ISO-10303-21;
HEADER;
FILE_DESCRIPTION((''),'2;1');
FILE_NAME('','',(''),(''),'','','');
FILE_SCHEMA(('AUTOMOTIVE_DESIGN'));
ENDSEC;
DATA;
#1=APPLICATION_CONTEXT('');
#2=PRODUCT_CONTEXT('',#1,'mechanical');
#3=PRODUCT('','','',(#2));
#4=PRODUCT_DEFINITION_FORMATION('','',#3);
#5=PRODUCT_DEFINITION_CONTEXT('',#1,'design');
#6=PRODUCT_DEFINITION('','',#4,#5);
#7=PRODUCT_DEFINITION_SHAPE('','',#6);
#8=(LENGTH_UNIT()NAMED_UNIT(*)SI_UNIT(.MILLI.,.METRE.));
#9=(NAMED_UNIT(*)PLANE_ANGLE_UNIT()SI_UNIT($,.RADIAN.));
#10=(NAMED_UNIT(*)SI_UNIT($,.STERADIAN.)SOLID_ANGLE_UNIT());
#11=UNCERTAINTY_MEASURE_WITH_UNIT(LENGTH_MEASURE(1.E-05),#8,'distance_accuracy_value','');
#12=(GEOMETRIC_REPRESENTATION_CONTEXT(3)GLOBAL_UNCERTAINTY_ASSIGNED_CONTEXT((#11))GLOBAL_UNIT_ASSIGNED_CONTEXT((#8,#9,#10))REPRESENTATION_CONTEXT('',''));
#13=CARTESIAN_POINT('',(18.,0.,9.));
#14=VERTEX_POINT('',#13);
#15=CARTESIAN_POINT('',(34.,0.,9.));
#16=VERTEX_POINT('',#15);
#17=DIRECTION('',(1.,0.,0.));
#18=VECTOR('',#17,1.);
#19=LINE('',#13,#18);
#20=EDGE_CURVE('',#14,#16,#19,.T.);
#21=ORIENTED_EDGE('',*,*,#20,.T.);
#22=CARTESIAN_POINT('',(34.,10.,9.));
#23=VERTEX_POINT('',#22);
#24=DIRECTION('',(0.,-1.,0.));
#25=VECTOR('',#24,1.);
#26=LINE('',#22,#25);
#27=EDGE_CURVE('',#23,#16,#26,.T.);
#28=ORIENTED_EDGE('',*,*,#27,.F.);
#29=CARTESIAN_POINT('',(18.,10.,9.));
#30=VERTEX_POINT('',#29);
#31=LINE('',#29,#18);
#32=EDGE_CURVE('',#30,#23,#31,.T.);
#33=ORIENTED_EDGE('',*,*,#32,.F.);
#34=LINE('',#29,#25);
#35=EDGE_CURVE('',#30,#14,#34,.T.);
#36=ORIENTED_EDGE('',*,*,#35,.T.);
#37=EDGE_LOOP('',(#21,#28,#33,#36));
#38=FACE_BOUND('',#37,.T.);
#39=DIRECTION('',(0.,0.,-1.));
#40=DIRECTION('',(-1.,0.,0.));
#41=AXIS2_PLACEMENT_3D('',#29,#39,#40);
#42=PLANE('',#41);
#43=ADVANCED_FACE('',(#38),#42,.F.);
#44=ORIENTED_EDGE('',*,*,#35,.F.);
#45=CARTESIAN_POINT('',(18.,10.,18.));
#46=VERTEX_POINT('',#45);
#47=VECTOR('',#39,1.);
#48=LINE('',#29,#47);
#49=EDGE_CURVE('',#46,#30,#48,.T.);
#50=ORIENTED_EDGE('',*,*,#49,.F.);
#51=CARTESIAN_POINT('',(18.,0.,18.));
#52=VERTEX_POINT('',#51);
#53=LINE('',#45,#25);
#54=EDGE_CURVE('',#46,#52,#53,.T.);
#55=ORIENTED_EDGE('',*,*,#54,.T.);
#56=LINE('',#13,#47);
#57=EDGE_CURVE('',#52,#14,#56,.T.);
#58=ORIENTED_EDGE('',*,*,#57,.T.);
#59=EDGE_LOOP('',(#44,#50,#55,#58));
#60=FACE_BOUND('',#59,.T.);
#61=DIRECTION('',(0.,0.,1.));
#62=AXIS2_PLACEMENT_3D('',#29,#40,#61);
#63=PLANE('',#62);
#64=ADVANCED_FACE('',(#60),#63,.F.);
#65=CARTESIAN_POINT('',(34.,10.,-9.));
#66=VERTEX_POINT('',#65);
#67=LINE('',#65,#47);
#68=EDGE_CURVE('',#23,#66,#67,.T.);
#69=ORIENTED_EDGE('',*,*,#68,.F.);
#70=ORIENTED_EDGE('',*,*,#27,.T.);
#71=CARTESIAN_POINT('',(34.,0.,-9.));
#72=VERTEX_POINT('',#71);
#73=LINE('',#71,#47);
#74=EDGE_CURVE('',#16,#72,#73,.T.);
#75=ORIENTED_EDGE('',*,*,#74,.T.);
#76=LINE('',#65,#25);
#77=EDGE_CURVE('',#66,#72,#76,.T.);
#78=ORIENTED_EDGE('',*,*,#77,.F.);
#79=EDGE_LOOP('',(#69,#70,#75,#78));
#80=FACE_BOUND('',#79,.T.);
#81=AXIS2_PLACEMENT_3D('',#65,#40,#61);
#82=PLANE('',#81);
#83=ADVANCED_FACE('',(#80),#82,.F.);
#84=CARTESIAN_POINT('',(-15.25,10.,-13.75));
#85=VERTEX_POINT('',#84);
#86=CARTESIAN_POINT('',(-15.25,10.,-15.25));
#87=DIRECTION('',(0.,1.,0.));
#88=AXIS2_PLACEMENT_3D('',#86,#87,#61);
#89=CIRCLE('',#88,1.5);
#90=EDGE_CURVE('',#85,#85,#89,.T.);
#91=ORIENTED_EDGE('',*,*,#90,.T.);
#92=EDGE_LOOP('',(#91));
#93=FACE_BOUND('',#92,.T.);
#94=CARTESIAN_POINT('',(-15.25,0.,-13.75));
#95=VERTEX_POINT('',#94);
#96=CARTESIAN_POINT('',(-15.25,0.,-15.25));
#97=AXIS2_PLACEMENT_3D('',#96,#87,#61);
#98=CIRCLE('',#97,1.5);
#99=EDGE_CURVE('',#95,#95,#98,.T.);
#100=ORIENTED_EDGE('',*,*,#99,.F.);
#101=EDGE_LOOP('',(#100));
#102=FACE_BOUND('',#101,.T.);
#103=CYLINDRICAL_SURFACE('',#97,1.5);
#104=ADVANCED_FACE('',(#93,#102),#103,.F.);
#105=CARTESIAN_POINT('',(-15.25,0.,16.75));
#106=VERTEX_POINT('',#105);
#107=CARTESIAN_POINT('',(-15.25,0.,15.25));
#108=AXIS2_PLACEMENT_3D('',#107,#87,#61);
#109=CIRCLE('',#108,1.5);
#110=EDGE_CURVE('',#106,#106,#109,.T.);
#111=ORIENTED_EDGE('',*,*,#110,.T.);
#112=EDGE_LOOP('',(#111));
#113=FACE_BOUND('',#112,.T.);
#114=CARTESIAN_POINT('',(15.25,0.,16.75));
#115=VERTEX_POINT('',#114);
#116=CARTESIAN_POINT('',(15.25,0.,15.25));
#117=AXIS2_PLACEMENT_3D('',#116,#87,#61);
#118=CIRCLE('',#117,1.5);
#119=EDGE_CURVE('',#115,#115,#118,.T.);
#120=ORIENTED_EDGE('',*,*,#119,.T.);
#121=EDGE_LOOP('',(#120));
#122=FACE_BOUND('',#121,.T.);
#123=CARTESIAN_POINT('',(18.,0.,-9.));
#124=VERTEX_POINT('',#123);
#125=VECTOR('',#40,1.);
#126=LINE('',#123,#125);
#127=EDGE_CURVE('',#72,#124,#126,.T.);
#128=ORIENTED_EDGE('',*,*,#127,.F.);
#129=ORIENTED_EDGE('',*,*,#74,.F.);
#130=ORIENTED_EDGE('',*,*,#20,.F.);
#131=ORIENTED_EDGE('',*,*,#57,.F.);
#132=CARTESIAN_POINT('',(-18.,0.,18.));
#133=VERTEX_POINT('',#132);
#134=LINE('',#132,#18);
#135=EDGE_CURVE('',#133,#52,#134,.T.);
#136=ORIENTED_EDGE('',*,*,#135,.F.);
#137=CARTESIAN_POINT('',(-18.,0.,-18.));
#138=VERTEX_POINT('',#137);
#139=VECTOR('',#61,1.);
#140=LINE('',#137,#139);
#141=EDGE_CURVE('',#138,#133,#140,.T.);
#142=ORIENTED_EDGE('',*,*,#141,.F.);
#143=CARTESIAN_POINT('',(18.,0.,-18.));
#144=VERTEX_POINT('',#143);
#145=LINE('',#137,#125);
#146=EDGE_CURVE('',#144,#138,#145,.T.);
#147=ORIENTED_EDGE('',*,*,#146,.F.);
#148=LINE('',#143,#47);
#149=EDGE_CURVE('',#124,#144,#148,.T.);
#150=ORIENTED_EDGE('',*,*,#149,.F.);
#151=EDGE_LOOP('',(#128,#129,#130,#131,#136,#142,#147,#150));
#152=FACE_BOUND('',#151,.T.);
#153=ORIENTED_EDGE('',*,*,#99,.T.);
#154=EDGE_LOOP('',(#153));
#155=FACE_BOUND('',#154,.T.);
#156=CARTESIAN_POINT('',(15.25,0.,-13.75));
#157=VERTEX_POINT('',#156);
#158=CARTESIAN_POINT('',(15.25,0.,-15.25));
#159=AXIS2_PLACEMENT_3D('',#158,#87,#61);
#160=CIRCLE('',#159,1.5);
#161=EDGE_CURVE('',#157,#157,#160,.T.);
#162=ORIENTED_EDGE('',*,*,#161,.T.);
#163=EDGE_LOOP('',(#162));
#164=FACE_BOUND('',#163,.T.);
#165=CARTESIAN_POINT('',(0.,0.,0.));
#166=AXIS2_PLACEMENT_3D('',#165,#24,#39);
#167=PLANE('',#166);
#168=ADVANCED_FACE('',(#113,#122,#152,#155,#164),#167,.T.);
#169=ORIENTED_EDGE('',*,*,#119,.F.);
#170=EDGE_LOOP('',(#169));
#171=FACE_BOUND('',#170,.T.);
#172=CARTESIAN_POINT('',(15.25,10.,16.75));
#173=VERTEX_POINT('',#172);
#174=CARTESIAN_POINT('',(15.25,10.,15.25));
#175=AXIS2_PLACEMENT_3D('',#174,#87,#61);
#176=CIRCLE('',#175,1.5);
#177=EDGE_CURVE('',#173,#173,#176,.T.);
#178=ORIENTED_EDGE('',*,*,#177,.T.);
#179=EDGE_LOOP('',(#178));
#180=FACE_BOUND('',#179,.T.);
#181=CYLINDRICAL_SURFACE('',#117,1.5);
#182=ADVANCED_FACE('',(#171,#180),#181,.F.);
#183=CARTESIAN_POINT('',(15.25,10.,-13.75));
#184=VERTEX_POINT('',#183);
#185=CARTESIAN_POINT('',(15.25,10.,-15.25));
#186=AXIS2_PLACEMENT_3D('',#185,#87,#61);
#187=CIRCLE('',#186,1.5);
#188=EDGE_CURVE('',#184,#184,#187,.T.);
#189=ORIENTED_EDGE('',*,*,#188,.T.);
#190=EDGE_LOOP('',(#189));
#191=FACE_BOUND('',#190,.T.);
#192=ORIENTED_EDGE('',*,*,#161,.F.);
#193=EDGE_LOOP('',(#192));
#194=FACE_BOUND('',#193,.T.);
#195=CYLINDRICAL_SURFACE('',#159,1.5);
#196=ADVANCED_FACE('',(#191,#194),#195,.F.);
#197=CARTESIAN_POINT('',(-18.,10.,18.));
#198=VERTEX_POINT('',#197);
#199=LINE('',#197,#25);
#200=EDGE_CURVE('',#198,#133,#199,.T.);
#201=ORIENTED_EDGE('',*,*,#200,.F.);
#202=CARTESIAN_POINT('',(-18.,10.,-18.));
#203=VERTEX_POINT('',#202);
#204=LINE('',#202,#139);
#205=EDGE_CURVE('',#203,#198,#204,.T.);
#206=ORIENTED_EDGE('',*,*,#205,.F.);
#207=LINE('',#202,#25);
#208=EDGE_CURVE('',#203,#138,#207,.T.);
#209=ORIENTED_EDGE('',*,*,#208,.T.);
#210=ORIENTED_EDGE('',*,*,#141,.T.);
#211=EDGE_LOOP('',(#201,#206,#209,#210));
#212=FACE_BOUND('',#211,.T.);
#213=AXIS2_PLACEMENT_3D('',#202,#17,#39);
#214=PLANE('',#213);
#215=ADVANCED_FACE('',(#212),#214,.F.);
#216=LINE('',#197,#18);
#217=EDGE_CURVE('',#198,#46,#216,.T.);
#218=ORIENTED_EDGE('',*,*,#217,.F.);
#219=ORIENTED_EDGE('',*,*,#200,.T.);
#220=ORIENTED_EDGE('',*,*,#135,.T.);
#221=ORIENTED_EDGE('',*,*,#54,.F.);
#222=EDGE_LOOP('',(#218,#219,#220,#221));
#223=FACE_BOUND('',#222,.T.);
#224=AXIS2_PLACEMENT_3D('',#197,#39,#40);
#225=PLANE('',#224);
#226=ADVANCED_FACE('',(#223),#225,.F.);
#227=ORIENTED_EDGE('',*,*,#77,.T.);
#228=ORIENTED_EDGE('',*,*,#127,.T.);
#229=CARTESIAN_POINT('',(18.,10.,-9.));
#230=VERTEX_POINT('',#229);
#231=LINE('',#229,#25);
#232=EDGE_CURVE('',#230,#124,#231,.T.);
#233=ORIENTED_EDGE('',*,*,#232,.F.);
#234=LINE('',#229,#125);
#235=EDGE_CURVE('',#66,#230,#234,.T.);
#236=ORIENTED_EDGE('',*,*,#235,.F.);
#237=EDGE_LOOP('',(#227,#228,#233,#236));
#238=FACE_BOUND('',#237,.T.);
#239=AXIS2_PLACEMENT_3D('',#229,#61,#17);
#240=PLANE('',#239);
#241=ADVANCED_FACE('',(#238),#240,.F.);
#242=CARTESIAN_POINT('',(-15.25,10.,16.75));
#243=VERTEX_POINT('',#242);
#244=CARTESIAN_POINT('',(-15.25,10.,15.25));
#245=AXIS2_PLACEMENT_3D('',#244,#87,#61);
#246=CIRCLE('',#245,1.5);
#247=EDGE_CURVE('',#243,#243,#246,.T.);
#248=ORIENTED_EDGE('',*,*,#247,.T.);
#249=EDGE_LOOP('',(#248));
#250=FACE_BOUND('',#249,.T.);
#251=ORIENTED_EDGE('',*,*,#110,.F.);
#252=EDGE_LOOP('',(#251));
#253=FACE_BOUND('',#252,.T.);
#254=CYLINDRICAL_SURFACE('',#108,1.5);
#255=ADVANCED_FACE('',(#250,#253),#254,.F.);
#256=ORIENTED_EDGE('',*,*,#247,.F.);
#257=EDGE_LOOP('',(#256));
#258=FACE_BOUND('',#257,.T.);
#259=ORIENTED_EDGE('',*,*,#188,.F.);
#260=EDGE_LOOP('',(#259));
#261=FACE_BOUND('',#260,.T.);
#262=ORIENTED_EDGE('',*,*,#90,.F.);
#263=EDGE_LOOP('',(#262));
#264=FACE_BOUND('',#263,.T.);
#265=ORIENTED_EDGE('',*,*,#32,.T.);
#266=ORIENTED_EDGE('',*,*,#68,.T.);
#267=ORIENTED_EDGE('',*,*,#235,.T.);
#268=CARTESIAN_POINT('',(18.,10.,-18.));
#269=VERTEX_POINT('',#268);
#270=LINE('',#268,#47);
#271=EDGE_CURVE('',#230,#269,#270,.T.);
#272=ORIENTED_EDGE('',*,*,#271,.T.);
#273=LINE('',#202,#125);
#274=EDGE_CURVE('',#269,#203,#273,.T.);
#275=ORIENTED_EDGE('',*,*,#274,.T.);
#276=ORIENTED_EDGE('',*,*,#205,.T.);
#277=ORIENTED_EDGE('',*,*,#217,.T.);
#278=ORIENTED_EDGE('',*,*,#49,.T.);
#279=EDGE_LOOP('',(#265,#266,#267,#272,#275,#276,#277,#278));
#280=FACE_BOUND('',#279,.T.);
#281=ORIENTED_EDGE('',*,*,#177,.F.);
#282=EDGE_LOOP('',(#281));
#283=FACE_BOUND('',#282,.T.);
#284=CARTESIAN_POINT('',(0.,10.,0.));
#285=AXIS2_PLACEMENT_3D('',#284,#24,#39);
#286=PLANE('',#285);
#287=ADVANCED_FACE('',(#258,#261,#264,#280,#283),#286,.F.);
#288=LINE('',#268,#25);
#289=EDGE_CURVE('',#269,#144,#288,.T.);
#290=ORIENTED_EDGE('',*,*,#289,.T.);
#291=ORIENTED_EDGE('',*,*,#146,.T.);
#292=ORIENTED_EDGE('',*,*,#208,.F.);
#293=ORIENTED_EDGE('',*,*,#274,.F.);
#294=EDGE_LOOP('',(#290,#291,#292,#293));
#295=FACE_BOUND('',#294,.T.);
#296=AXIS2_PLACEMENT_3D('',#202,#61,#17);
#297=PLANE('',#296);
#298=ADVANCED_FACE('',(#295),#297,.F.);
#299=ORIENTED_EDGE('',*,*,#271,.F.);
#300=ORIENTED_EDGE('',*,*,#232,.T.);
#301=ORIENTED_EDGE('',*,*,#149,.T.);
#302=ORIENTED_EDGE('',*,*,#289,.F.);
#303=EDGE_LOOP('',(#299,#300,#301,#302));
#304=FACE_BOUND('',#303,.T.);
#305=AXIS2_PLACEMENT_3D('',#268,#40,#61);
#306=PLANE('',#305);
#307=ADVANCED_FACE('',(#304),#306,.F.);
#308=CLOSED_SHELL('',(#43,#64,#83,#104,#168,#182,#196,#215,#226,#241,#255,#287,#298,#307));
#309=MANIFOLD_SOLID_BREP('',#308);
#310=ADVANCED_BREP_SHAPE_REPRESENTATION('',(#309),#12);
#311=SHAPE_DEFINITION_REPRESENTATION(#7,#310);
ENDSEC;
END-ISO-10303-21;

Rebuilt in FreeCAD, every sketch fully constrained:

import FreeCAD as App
import Part
import Sketcher
from FreeCAD import Vector
Q = App.Units.Quantity

doc = App.newDocument("Part")
body = doc.addObject("PartDesign::Body", "Body")

# Sketch on XZ plane
sketch1 = doc.addObject("Sketcher::SketchObject", "Sketch")
body.addObject(sketch1)
sketch1.AttachmentSupport = (doc.XZ_Plane, [""])
sketch1.MapMode = "FlatFace"
sketch1.addGeometry([
    Part.LineSegment(Vector(18, 18, 0), Vector(18, 9, 0)),  # 0
    Part.LineSegment(Vector(18, 9, 0), Vector(34, 9, 0)),  # 1
    Part.LineSegment(Vector(34, 9, 0), Vector(34, -9, 0)),  # 2
    Part.LineSegment(Vector(34, -9, 0), Vector(18, -9, 0)),  # 3
    Part.LineSegment(Vector(18, -9, 0), Vector(18, -18, 0)),  # 4
    Part.LineSegment(Vector(18, -18, 0), Vector(-18, -18, 0)),  # 5
    Part.LineSegment(Vector(-18, -18, 0), Vector(-18, 18, 0)),  # 6
    Part.LineSegment(Vector(-18, 18, 0), Vector(18, 18, 0)),  # 7
], False)
sketch1.addConstraint([
    Sketcher.Constraint("Coincident", 0, 2, 1, 1),
    Sketcher.Constraint("Coincident", 1, 2, 2, 1),
    Sketcher.Constraint("Coincident", 2, 2, 3, 1),
    Sketcher.Constraint("Coincident", 3, 2, 4, 1),
    Sketcher.Constraint("Coincident", 4, 2, 5, 1),
    Sketcher.Constraint("Coincident", 5, 2, 6, 1),
    Sketcher.Constraint("Coincident", 6, 2, 7, 1),
    Sketcher.Constraint("Coincident", 7, 2, 0, 1),
    Sketcher.Constraint("Vertical", 0),
    Sketcher.Constraint("Horizontal", 1),
    Sketcher.Constraint("Vertical", 2),
    Sketcher.Constraint("Horizontal", 3),
    Sketcher.Constraint("Vertical", 4),
    Sketcher.Constraint("Horizontal", 5),
    Sketcher.Constraint("Vertical", 6),
    Sketcher.Constraint("Horizontal", 7),
    Sketcher.Constraint("Symmetric", 4, 2, 6, 2, -1, 1),
    Sketcher.Constraint("Symmetric", 0, 2, 3, 2, -1),
    Sketcher.Constraint("Equal", 7, 6),
    Sketcher.Constraint("DistanceX", 1, 1, 1, 2, Q("16 mm")),
    Sketcher.Constraint("DistanceX", 5, 2, 5, 1, Q("36 mm")),
    Sketcher.Constraint("DistanceY", 0, 2, 0, 1, Q("9 mm")),
])
pad1 = doc.addObject("PartDesign::Pad", "Pad")
body.addObject(pad1)
pad1.Profile = sketch1
pad1.Length = 10
pad1.Reversed = True

# Sketch on XZ plane
sketch2 = doc.addObject("Sketcher::SketchObject", "Sketch001")
body.addObject(sketch2)
sketch2.AttachmentSupport = (doc.XZ_Plane, [""])
sketch2.MapMode = "FlatFace"
sketch2.AttachmentOffset = App.Placement(Vector(0, 0, -10), App.Rotation())
sketch2.addGeometry([
    Part.Circle(Vector(-15.2, -15.2, 0), Vector(0, 0, 1), 1.5),
    Part.Circle(Vector(15.2, -15.2, 0), Vector(0, 0, 1), 1.5),
    Part.Circle(Vector(-15.2, 15.2, 0), Vector(0, 0, 1), 1.5),
    Part.Circle(Vector(15.2, 15.2, 0), Vector(0, 0, 1), 1.5),
], False)
sketch2.addConstraint([
    Sketcher.Constraint("Equal", 0, 1),
    Sketcher.Constraint("Equal", 1, 2),
    Sketcher.Constraint("Equal", 2, 3),
    Sketcher.Constraint("Symmetric", 1, 3, 2, 3, -1, 1),
    Sketcher.Constraint("Symmetric", 0, 3, 3, 3, -1, 1),
    Sketcher.Constraint("Symmetric", 0, 3, 1, 3, -2),
    Sketcher.Constraint("Diameter", 0, Q("3 mm")),
    Sketcher.Constraint("DistanceX", 0, 3, 1, 3, Q("30.5 mm")),
    Sketcher.Constraint("DistanceY", 0, 3, 2, 3, Q("30.5 mm")),
])
pocket1 = doc.addObject("PartDesign::Pocket", "Pocket")
body.addObject(pocket1)
pocket1.Profile = sketch2
pocket1.Length = 10
pocket1.Reversed = True

doc.recompute()
